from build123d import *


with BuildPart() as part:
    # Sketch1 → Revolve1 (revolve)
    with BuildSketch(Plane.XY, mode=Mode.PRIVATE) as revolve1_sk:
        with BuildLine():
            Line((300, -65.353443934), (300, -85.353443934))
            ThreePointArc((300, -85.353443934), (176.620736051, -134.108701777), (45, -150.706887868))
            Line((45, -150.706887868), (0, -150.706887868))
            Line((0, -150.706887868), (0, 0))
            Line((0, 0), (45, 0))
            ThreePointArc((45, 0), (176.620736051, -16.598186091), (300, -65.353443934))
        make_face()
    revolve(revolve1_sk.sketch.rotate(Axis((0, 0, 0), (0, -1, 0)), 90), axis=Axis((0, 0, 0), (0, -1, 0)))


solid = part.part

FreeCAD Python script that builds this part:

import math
import FreeCAD as App
import Part
import Sketcher

V = App.Vector
Q = App.Units.Quantity

doc = App.newDocument("Part")
body = doc.addObject("PartDesign::Body", "Body")

# Sketch on XY plane
sketch1 = doc.addObject("Sketcher::SketchObject", "Sketch")
body.addObject(sketch1)
sketch1.AttachmentSupport = (doc.XY_Plane, [""])
sketch1.MapMode = "FlatFace"
sketch1.addGeometry(Part.LineSegment(V(300, -85.353444, 0), V(300, -65.353444, 0)), False)
sketch1.addGeometry(Part.ArcOfCircle(Part.Circle(V(45, -530.163894, 0), V(0, 0, 1), 530.163894), math.radians(61.250355), math.radians(90)), False)
sketch1.addGeometry(Part.LineSegment(V(45, 0, 0), V(0, 0, 0)), False)
sketch1.addGeometry(Part.LineSegment(V(0, 0, 0), V(0, -150.706888, 0)), False)
sketch1.addGeometry(Part.LineSegment(V(0, -150.706888, 0), V(45, -150.706888, 0)), False)
sketch1.addGeometry(Part.ArcOfCircle(Part.Circle(V(45, 379.457006, 0), V(0, 0, 1), 530.163894), math.radians(-90), math.radians(-61.250355)), False)
sketch1.addConstraint(Sketcher.Constraint("Coincident", 0, 2, 1, 1))
sketch1.addConstraint(Sketcher.Constraint("Tangent", 1, 2, 2, 1))
sketch1.addConstraint(Sketcher.Constraint("Coincident", 2, 2, 3, 1))
sketch1.addConstraint(Sketcher.Constraint("Coincident", 3, 2, 4, 1))
sketch1.addConstraint(Sketcher.Constraint("Tangent", 4, 2, 5, 1))
sketch1.addConstraint(Sketcher.Constraint("Coincident", 5, 2, 0, 1))
sketch1.addConstraint(Sketcher.Constraint("Vertical", 0))
sketch1.addConstraint(Sketcher.Constraint("Horizontal", 2))
sketch1.addConstraint(Sketcher.Constraint("Vertical", 3))
sketch1.addConstraint(Sketcher.Constraint("Horizontal", 4))
sketch1.addConstraint(Sketcher.Constraint("Coincident", 2, 2, -1, 1))
sketch1.addConstraint(Sketcher.Constraint("Equal", 1, 5))
sketch1.addConstraint(Sketcher.Constraint("Vertical", 1, 3, 5, 3))
sketch1.addConstraint(Sketcher.Constraint("DistanceX", 2, 2, 2, 1, Q("45 mm")))
sketch1.addConstraint(Sketcher.Constraint("DistanceY", 0, 1, 0, 2, Q("20 mm")))
sketch1.addConstraint(Sketcher.Constraint("DistanceX", -1, 1, 0, 2, Q("300 mm")))
sketch1.addConstraint(Sketcher.Constraint("Radius", 1, Q("530.163894 mm")))
revolution = doc.addObject("PartDesign::Revolution", "Revolution")
body.addObject(revolution)
revolution.Profile = sketch1
revolution.ReferenceAxis = (sketch1, ["V_Axis"])
revolution.Angle = 360

doc.recompute()
